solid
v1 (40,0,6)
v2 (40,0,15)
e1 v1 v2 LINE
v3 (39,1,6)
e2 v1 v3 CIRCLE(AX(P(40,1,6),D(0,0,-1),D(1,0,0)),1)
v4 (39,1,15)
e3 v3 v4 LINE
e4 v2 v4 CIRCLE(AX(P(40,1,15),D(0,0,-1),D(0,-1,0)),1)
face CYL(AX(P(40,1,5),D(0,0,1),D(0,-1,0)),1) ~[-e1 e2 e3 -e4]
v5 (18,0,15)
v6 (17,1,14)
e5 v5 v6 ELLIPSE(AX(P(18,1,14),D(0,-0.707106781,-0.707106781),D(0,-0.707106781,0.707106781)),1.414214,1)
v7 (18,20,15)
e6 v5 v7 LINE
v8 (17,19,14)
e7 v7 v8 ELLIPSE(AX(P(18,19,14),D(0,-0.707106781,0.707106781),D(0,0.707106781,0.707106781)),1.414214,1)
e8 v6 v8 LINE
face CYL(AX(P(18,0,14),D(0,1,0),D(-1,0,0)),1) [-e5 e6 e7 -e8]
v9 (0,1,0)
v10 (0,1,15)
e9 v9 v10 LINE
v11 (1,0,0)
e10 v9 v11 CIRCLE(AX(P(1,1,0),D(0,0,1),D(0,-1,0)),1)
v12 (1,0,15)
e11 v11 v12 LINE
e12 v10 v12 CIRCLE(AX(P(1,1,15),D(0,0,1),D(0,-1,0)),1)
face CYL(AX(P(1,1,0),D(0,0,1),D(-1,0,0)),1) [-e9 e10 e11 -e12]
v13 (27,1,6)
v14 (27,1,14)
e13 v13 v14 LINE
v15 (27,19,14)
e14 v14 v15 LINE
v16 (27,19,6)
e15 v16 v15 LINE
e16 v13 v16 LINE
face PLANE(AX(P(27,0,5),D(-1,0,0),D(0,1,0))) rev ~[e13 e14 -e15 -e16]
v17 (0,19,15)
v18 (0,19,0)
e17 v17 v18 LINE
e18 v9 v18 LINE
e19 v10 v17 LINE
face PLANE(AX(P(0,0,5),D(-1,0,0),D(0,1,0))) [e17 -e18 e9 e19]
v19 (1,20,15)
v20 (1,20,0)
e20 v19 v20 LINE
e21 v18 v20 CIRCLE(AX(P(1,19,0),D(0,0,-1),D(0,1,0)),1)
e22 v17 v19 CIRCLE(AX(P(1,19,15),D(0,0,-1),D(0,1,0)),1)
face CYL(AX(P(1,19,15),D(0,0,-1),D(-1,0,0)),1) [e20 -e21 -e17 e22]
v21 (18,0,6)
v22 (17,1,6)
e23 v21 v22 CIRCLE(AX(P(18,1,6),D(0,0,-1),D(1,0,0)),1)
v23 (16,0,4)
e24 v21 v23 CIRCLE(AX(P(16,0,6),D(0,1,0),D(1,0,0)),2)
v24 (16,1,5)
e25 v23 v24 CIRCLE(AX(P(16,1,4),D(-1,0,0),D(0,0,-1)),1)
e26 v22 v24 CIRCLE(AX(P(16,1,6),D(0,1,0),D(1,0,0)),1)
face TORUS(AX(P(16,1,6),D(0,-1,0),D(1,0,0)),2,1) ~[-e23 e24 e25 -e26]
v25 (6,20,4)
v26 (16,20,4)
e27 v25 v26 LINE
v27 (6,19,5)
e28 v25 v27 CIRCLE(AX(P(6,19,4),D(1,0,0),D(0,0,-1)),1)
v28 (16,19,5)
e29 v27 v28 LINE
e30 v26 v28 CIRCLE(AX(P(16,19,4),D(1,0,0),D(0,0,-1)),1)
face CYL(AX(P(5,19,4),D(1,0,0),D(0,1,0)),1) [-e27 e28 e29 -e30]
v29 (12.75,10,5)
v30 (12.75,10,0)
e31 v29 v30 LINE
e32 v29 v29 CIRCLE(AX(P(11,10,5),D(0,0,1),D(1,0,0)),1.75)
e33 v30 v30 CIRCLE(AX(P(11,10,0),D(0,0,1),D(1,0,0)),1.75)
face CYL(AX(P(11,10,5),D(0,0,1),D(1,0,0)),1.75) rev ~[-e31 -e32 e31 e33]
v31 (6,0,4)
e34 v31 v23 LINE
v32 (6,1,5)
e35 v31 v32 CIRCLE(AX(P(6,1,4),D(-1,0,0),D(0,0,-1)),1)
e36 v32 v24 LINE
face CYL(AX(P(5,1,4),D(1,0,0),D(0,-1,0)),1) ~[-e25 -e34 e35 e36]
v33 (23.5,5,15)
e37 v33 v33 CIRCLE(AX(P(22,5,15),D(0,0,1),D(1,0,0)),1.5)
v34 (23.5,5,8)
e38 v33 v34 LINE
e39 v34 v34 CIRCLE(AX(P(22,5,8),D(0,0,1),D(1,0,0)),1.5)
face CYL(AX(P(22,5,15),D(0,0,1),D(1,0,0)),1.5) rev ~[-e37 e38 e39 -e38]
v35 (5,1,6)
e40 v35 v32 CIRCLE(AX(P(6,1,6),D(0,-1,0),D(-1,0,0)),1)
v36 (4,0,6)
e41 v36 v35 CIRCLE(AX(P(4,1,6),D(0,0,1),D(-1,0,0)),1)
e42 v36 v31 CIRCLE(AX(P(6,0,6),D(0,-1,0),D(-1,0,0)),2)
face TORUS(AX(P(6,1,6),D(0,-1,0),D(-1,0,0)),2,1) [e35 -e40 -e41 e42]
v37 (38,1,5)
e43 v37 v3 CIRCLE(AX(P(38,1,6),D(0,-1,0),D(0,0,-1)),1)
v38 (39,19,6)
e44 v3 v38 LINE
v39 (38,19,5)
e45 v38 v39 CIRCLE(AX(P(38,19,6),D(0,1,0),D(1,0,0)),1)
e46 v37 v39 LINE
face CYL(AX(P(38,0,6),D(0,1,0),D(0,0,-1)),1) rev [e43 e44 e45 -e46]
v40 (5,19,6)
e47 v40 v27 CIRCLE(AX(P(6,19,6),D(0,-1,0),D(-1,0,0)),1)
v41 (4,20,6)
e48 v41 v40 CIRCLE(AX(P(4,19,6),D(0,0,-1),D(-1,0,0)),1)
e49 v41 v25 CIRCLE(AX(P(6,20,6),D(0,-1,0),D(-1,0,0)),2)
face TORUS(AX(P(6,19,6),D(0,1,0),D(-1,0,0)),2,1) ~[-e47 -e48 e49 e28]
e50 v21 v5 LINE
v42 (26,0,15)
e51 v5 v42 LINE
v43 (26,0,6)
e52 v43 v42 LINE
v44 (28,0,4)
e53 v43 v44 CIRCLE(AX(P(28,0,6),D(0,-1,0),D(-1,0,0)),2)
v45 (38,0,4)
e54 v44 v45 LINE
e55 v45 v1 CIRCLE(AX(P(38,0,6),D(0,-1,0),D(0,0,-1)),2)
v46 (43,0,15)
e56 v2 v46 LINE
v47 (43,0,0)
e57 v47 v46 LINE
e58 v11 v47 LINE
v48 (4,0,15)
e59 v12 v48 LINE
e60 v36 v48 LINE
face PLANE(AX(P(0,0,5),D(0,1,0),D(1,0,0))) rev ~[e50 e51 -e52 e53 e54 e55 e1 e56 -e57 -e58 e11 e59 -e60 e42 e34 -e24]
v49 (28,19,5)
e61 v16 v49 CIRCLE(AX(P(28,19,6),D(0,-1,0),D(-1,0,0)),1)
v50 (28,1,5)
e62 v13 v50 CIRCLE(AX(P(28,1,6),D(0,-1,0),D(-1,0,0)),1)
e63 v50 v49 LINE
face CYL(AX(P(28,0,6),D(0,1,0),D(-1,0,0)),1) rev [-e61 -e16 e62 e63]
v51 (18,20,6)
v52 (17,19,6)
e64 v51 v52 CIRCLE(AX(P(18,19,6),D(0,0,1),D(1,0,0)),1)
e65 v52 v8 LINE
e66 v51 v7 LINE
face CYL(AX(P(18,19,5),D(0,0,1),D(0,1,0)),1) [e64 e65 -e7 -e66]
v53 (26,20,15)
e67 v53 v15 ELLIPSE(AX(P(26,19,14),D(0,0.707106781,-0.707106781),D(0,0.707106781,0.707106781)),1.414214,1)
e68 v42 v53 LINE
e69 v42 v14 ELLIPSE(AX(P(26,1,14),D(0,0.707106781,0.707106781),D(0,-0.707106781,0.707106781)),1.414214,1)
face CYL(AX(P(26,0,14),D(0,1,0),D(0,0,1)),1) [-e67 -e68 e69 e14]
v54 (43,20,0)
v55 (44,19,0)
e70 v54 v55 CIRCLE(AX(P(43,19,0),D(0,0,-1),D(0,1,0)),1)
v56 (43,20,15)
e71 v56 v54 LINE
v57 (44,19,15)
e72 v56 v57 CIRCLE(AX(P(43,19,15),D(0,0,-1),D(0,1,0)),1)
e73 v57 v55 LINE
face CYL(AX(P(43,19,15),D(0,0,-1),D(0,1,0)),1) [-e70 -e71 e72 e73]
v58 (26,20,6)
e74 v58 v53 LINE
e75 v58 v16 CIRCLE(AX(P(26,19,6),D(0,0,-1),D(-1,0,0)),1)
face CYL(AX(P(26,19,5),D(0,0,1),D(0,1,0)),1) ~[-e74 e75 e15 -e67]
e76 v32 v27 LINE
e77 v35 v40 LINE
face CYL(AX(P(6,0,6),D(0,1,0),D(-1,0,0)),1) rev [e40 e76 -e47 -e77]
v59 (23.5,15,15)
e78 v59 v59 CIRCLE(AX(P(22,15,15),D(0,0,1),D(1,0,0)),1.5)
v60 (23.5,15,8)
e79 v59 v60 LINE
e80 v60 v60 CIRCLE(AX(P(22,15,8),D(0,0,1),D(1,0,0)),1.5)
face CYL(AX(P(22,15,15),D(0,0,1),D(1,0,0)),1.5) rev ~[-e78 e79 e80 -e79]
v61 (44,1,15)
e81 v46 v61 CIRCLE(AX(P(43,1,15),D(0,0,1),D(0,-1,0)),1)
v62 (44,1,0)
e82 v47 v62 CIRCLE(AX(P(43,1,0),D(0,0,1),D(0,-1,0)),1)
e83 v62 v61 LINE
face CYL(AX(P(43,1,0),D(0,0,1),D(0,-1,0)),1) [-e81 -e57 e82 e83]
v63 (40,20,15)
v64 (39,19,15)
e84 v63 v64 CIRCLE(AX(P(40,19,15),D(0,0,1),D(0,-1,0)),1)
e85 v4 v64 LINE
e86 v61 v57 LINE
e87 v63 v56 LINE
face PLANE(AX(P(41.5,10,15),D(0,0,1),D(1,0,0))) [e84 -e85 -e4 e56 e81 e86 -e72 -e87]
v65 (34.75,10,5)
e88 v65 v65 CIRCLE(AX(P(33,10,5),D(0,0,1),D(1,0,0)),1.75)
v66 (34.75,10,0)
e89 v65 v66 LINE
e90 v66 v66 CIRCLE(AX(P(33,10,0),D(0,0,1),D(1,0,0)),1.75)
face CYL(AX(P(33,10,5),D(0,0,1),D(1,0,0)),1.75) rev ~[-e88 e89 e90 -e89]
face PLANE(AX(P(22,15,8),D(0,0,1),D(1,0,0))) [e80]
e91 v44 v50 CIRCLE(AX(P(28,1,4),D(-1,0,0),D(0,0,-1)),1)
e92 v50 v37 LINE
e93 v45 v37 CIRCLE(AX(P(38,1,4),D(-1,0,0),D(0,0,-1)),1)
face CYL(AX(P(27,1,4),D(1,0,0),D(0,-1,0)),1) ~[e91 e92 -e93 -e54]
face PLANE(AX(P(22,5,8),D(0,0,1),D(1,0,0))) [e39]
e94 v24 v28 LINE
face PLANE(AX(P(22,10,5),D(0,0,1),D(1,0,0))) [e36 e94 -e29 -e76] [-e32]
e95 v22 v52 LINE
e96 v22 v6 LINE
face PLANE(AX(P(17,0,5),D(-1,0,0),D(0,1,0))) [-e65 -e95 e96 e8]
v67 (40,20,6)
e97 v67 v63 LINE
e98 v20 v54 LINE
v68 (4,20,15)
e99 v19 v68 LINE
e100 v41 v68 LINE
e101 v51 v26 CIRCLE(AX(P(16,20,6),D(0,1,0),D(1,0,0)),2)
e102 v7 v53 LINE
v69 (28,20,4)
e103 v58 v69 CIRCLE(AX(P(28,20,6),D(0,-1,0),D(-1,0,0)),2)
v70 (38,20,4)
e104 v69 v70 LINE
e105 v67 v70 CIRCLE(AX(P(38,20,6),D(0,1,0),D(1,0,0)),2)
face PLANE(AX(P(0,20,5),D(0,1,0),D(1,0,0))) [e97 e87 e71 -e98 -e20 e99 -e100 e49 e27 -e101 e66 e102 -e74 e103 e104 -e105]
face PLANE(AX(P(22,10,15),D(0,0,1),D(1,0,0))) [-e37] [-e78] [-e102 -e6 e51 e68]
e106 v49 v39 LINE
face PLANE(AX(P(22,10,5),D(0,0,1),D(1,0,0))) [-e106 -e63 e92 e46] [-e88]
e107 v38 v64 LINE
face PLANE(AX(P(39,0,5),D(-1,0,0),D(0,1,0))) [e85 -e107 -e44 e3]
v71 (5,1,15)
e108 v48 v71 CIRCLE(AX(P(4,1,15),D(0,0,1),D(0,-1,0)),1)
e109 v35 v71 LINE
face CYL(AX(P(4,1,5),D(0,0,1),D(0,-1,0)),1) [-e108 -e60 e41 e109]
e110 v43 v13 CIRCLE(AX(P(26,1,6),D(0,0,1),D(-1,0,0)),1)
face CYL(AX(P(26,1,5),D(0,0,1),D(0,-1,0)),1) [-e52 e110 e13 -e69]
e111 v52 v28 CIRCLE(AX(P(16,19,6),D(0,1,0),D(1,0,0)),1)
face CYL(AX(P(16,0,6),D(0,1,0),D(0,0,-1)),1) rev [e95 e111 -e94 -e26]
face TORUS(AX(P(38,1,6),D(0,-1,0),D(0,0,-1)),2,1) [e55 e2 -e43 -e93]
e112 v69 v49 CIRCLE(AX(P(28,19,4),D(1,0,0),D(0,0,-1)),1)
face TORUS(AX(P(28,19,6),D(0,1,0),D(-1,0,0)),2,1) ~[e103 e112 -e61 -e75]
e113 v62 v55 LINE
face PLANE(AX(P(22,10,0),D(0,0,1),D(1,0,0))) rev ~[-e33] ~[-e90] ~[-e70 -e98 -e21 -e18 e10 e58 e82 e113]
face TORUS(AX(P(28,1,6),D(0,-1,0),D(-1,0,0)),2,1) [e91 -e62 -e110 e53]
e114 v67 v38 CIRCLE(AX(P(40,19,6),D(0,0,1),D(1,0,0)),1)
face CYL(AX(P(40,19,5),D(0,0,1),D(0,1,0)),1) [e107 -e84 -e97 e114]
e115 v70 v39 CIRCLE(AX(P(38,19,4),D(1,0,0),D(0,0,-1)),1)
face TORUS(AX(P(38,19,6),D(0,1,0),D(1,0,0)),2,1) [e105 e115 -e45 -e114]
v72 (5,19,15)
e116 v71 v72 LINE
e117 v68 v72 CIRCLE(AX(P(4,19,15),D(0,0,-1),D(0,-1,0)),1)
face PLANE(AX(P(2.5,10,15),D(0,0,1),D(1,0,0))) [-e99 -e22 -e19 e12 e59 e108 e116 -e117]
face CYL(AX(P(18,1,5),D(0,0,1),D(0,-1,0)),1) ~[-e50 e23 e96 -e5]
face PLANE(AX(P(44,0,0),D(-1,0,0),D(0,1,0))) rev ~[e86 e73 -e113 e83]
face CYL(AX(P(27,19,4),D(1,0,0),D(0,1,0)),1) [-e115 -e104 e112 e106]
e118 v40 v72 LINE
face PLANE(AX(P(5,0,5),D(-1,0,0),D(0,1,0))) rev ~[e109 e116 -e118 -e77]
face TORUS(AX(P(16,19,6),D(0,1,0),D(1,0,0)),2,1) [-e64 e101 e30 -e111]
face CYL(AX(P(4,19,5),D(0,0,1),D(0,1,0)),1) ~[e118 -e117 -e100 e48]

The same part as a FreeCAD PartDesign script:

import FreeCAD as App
import Part
import Sketcher
Q = App.Units.Quantity


def edges_at(feature, points):
    """Names of the edges that pass closest to the given points."""
    edges = feature.Shape.Edges
    near = lambda p: min(range(len(edges)), key=lambda i: edges[i].distToShape(Part.Vertex(*p))[0])
    return sorted({f"Edge{near(p) + 1}" for p in points})

doc = App.newDocument("Part")
params = doc.addObject("Spreadsheet::Sheet", "Params")
for row, (alias, value) in enumerate([
    ("sketch1_width", "44 mm"),
    ("sketch1_height", "20 mm"),
    ("pad1_length", "5 mm"),
    ("sketch2_width", "5 mm"),
    ("sketch2_width2", "10 mm"),
    ("sketch2_height", "20 mm"),
    ("pad2_length", "10 mm"),
    ("sketch3_diameter", "3.5 mm"),
    ("sketch4_diameter", "3.5 mm"),
    ("sketch5_diameter", "3 mm"),
    ("pocket3_length", "7 mm"),
    ("fillet_radius", "1 mm"),
], start=1):
    params.set(f"A{row}", alias)
    params.set(f"B{row}", "=" + value)
    params.setAlias(f"B{row}", alias)

body = doc.addObject("PartDesign::Body", "Body")

# Sketch on XY plane
sketch1 = body.newObject("Sketcher::SketchObject", "Sketch")
sketch1.AttachmentSupport = (doc.getObject("XY_Plane"), [""])
sketch1.MapMode = "FlatFace"
sketch1.addGeometry([
    Part.LineSegment(App.Vector(0, 20, 0), App.Vector(0, 0, 0)),
    Part.LineSegment(App.Vector(0, 0, 0), App.Vector(44, 0, 0)),
    Part.LineSegment(App.Vector(44, 0, 0), App.Vector(44, 20, 0)),
    Part.LineSegment(App.Vector(44, 20, 0), App.Vector(0, 20, 0)),
], False)
sketch1.addConstraint([
    Sketcher.Constraint("Coincident", 0, 2, 1, 1),
    Sketcher.Constraint("Coincident", 1, 2, 2, 1),
    Sketcher.Constraint("Coincident", 2, 2, 3, 1),
    Sketcher.Constraint("Coincident", 3, 2, 0, 1),
    Sketcher.Constraint("Vertical", 0),
    Sketcher.Constraint("Horizontal", 1),
    Sketcher.Constraint("Vertical", 2),
    Sketcher.Constraint("Horizontal", 3),
    Sketcher.Constraint("Coincident", 0, 2, -1, 1),
    Sketcher.Constraint("DistanceX", 1, 1, 1, 2, Q("44 mm")),
    Sketcher.Constraint("DistanceY", 0, 2, 0, 1, Q("20 mm")),
])
sketch1.setExpression("Constraints[9]", "Params.sketch1_width")
sketch1.setExpression("Constraints[10]", "Params.sketch1_height")
pad1 = body.newObject("PartDesign::Pad", "Pad")
pad1.Profile = sketch1
pad1.setExpression("Length", "Params.pad1_length")

# Sketch on XY plane
sketch2 = body.newObject("Sketcher::SketchObject", "Sketch001")
sketch2.AttachmentSupport = (doc.getObject("XY_Plane"), [""])
sketch2.MapMode = "FlatFace"
sketch2.AttachmentOffset = App.Placement(App.Vector(0, 0, 5), App.Rotation())
sketch2.addGeometry([
    Part.LineSegment(App.Vector(0, 20, 0), App.Vector(0, 0, 0)),  # 0
    Part.LineSegment(App.Vector(0, 0, 0), App.Vector(5, 0, 0)),  # 1
    Part.LineSegment(App.Vector(5, 0, 0), App.Vector(5, 20, 0)),  # 2
    Part.LineSegment(App.Vector(5, 20, 0), App.Vector(0, 20, 0)),  # 3
    Part.LineSegment(App.Vector(17, 20, 0), App.Vector(17, 0, 0)),  # 4
    Part.LineSegment(App.Vector(17, 0, 0), App.Vector(27, 0, 0)),  # 5
    Part.LineSegment(App.Vector(27, 0, 0), App.Vector(27, 20, 0)),  # 6
    Part.LineSegment(App.Vector(27, 20, 0), App.Vector(17, 20, 0)),  # 7
    Part.LineSegment(App.Vector(39, 20, 0), App.Vector(39, 0, 0)),  # 8
    Part.LineSegment(App.Vector(39, 0, 0), App.Vector(44, 0, 0)),  # 9
    Part.LineSegment(App.Vector(44, 0, 0), App.Vector(44, 20, 0)),  # 10
    Part.LineSegment(App.Vector(44, 20, 0), App.Vector(39, 20, 0)),  # 11
], False)
sketch2.addConstraint([
    Sketcher.Constraint("Coincident", 0, 2, 1, 1),
    Sketcher.Constraint("Coincident", 1, 2, 2, 1),
    Sketcher.Constraint("Coincident", 2, 2, 3, 1),
    Sketcher.Constraint("Coincident", 3, 2, 0, 1),
    Sketcher.Constraint("Coincident", 4, 2, 5, 1),
    Sketcher.Constraint("Coincident", 5, 2, 6, 1),
    Sketcher.Constraint("Coincident", 6, 2, 7, 1),
    Sketcher.Constraint("Coincident", 7, 2, 4, 1),
    Sketcher.Constraint("Coincident", 8, 2, 9, 1),
    Sketcher.Constraint("Coincident", 9, 2, 10, 1),
    Sketcher.Constraint("Coincident", 10, 2, 11, 1),
    Sketcher.Constraint("Coincident", 11, 2, 8, 1),
    Sketcher.Constraint("Vertical", 0),
    Sketcher.Constraint("Horizontal", 1),
    Sketcher.Constraint("Vertical", 2),
    Sketcher.Constraint("Horizontal", 3),
    Sketcher.Constraint("Vertical", 4),
    Sketcher.Constraint("Horizontal", 5),
    Sketcher.Constraint("Vertical", 6),
    Sketcher.Constraint("Horizontal", 7),
    Sketcher.Constraint("Vertical", 8),
    Sketcher.Constraint("Horizontal", 9),
    Sketcher.Constraint("Vertical", 10),
    Sketcher.Constraint("Horizontal", 11),
    Sketcher.Constraint("Coincident", 0, 2, -1, 1),
    Sketcher.Constraint("PointOnObject", 4, 2, -1),
    Sketcher.Constraint("PointOnObject", 8, 2, -1),
    Sketcher.Constraint("Horizontal", 3, 2, 6, 2),
    Sketcher.Constraint("Horizontal", 7, 2, 10, 2),
    Sketcher.Constraint("Equal", 3, 9),
    Sketcher.Constraint("DistanceX", 1, 1, 1, 2, Q("5 mm")),
    Sketcher.Constraint("DistanceX", 5, 1, 5, 2, Q("10 mm")),
    Sketcher.Constraint("DistanceY", 0, 2, 0, 1, Q("20 mm")),
    Sketcher.Constraint("DistanceX", -1, 1, 4, 2, Q("17 mm")),
    Sketcher.Constraint("DistanceX", -1, 1, 8, 2, Q("39 mm")),
])
sketch2.setExpression("Constraints[30]", "Params.sketch2_width")
sketch2.setExpression("Constraints[31]", "Params.sketch2_width2")
sketch2.setExpression("Constraints[32]", "Params.sketch2_height")
pad2 = body.newObject("PartDesign::Pad", "Pad001")
pad2.Profile = sketch2
pad2.setExpression("Length", "Params.pad2_length")

# Sketch on XY plane
sketch3 = body.newObject("Sketcher::SketchObject", "Sketch002")
sketch3.AttachmentSupport = (doc.getObject("XY_Plane"), [""])
sketch3.MapMode = "FlatFace"
sketch3.AttachmentOffset = App.Placement(App.Vector(0, 0, 5), App.Rotation())
sketch3.addGeometry(Part.Circle(App.Vector(11, 10, 0), App.Vector(0, 0, 1), 1.8), False)
sketch3.addConstraint([
    Sketcher.Constraint("Diameter", 0, Q("3.5 mm")),
    Sketcher.Constraint("DistanceX", -1, 1, 0, 3, Q("11 mm")),
    Sketcher.Constraint("DistanceY", -1, 1, 0, 3, Q("10 mm")),
])
sketch3.setExpression("Constraints[0]", "Params.sketch3_diameter")
pocket1 = body.newObject("PartDesign::Pocket", "Pocket")
pocket1.Profile = sketch3
pocket1.Type = "UpToFirst"

# Sketch on XY plane
sketch4 = body.newObject("Sketcher::SketchObject", "Sketch003")
sketch4.AttachmentSupport = (doc.getObject("XY_Plane"), [""])
sketch4.MapMode = "FlatFace"
sketch4.AttachmentOffset = App.Placement(App.Vector(0, 0, 5), App.Rotation())
sketch4.addGeometry(Part.Circle(App.Vector(33, 10, 0), App.Vector(0, 0, 1), 1.8), False)
sketch4.addConstraint([
    Sketcher.Constraint("Diameter", 0, Q("3.5 mm")),
    Sketcher.Constraint("DistanceX", -1, 1, 0, 3, Q("33 mm")),
    Sketcher.Constraint("DistanceY", -1, 1, 0, 3, Q("10 mm")),
])
sketch4.setExpression("Constraints[0]", "Params.sketch4_diameter")
pocket2 = body.newObject("PartDesign::Pocket", "Pocket001")
pocket2.Profile = sketch4
pocket2.Type = "UpToFirst"

# Sketch on XY plane
sketch5 = body.newObject("Sketcher::SketchObject", "Sketch004")
sketch5.AttachmentSupport = (doc.getObject("XY_Plane"), [""])
sketch5.MapMode = "FlatFace"
sketch5.AttachmentOffset = App.Placement(App.Vector(0, 0, 15), App.Rotation())
sketch5.addGeometry([
    Part.Circle(App.Vector(22, 15, 0), App.Vector(0, 0, 1), 1.5),
    Part.Circle(App.Vector(22, 5, 0), App.Vector(0, 0, 1), 1.5),
], False)
sketch5.addConstraint([
    Sketcher.Constraint("Equal", 0, 1),
    Sketcher.Constraint("Vertical", 0, 3, 1, 3),
    Sketcher.Constraint("Diameter", 0, Q("3 mm")),
    Sketcher.Constraint("DistanceX", -1, 1, 0, 3, Q("22 mm")),
    Sketcher.Constraint("DistanceY", -1, 1, 0, 3, Q("15 mm")),
    Sketcher.Constraint("DistanceY", -1, 1, 1, 3, Q("5 mm")),
])
sketch5.setExpression("Constraints[2]", "Params.sketch5_diameter")
pocket3 = body.newObject("PartDesign::Pocket", "Pocket002")
pocket3.Profile = sketch5
pocket3.setExpression("Length", "Params.pocket3_length")
doc.recompute()

fillet = body.newObject("PartDesign::Fillet", "Fillet")
fillet.Base = (pocket3, edges_at(pocket3, [
    (11, 0, 5),
    (5, 10, 5),
    (5, 0, 10),
    (5, 20, 10),
    (33, 0, 5),
    (11, 20, 5),
    (17, 10, 5),
    (17, 20, 10),
    (17, 0, 10),
    (27, 10, 5),
    (27, 0, 10),
    (27, 20, 10),
    (17, 10, 15),
    (27, 10, 15),
    (33, 20, 5),
    (39, 0, 10),
    (39, 10, 5),
    (39, 20, 10),
    (0, 20, 7.5),
    (44, 20, 7.5),
    (44, 0, 7.5),
    (0, 0, 7.5),
]))
fillet.setExpression("Radius", "Params.fillet_radius")

doc.recompute()
